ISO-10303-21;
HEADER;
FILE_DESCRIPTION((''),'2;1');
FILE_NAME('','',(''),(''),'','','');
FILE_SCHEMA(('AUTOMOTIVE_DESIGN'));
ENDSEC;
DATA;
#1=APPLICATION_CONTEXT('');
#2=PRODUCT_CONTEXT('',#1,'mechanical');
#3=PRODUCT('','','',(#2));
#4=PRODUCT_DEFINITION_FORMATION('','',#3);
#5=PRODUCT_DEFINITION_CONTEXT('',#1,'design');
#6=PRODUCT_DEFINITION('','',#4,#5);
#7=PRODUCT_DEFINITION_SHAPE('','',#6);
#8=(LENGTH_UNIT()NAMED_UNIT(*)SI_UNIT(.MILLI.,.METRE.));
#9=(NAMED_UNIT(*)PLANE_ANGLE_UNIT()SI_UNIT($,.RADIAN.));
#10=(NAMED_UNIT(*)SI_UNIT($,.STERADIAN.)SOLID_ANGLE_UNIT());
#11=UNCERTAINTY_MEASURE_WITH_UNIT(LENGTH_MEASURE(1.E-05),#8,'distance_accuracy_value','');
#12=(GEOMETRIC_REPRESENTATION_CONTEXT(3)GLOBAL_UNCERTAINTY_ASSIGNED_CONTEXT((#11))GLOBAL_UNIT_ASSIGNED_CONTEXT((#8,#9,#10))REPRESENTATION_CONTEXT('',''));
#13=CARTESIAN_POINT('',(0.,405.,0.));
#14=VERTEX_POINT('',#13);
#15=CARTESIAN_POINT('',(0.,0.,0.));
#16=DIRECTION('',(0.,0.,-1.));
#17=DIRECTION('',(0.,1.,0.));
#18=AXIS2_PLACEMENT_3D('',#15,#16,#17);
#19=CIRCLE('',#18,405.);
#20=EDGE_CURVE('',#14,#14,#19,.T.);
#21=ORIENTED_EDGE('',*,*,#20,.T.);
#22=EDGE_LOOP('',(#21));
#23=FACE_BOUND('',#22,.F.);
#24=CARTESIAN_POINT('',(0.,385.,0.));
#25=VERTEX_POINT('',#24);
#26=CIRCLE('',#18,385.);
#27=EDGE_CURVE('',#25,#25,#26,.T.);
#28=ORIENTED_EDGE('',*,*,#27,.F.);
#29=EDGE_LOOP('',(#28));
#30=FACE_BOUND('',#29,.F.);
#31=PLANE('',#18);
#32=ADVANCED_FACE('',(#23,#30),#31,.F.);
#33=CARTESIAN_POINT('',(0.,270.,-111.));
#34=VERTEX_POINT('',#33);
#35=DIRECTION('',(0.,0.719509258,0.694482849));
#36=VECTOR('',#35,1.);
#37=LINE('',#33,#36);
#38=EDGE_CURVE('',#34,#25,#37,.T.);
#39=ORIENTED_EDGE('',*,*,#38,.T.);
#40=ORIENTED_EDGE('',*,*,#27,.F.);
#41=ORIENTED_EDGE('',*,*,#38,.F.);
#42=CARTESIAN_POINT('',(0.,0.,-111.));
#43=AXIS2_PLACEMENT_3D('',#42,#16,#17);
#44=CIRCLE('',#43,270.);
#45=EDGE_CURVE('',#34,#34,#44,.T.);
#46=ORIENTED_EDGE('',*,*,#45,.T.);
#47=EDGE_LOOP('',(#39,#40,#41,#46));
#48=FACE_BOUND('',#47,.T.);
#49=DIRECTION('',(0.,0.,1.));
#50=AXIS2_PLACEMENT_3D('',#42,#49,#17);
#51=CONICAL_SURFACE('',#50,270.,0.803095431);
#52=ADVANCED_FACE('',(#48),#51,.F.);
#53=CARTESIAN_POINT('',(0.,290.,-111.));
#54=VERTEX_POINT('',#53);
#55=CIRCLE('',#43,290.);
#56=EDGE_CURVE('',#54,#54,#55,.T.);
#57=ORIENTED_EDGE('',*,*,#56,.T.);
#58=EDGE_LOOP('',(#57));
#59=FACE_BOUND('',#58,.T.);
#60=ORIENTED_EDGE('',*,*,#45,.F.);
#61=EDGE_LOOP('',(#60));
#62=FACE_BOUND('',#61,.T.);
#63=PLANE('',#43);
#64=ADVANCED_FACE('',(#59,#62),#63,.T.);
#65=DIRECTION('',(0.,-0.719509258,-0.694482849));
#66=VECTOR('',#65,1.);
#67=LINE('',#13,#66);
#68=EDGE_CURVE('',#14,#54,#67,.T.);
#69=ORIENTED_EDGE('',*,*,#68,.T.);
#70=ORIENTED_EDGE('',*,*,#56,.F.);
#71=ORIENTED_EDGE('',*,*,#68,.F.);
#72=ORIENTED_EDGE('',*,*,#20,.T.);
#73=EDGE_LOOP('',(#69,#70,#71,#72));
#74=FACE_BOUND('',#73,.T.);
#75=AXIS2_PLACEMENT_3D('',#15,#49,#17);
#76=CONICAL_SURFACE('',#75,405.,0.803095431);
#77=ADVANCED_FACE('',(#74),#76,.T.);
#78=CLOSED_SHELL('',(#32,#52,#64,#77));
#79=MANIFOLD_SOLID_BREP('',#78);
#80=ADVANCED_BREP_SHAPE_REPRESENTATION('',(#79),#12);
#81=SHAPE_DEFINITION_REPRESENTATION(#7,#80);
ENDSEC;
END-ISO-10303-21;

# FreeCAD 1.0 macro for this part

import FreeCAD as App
import Part
import Sketcher


def add_polygon(sketch, points):
    """Adds a closed chain of lines whose ends are joined by coincident constraints."""
    first, n = sketch.GeometryCount, len(points)
    for a, b in zip(points, points[1:] + points[:1]):
        sketch.addGeometry(Part.LineSegment(App.Vector(*a, 0), App.Vector(*b, 0)), False)
    for i in range(n):
        sketch.addConstraint(Sketcher.Constraint("Coincident", first + i, 2, first + (i + 1) % n, 1))

doc = App.newDocument("Part")
body = doc.addObject("PartDesign::Body", "Body")

sketch1 = body.newObject("Sketcher::SketchObject", "Sketch")
sketch1.AttachmentSupport = (doc.getObject("YZ_Plane"), [""])
sketch1.MapMode = "FlatFace"
add_polygon(sketch1, [(405, 0), (385, 0), (270, -111), (290, -111)])
sketch1.addConstraint([
    Sketcher.Constraint("Horizontal", 0),
    Sketcher.Constraint("Horizontal", 2),
    Sketcher.Constraint("PointOnObject", 0, 2, -1),
    Sketcher.Constraint("Parallel", 1, 3),
    Sketcher.Constraint("DistanceX", 0, 2, 0, 1, 20.0),
    Sketcher.Constraint("DistanceX", -1, 1, 0, 2, 385.0),
    Sketcher.Constraint("DistanceX", -1, 1, 1, 2, 270.0),
    Sketcher.Constraint("DistanceY", 1, 2, -1, 1, 111.0),
])
revolution = body.newObject("PartDesign::Revolution", "Revolution")
revolution.Profile = sketch1
revolution.ReferenceAxis = (sketch1, ["V_Axis"])
revolution.Angle = 360

doc.recompute()
